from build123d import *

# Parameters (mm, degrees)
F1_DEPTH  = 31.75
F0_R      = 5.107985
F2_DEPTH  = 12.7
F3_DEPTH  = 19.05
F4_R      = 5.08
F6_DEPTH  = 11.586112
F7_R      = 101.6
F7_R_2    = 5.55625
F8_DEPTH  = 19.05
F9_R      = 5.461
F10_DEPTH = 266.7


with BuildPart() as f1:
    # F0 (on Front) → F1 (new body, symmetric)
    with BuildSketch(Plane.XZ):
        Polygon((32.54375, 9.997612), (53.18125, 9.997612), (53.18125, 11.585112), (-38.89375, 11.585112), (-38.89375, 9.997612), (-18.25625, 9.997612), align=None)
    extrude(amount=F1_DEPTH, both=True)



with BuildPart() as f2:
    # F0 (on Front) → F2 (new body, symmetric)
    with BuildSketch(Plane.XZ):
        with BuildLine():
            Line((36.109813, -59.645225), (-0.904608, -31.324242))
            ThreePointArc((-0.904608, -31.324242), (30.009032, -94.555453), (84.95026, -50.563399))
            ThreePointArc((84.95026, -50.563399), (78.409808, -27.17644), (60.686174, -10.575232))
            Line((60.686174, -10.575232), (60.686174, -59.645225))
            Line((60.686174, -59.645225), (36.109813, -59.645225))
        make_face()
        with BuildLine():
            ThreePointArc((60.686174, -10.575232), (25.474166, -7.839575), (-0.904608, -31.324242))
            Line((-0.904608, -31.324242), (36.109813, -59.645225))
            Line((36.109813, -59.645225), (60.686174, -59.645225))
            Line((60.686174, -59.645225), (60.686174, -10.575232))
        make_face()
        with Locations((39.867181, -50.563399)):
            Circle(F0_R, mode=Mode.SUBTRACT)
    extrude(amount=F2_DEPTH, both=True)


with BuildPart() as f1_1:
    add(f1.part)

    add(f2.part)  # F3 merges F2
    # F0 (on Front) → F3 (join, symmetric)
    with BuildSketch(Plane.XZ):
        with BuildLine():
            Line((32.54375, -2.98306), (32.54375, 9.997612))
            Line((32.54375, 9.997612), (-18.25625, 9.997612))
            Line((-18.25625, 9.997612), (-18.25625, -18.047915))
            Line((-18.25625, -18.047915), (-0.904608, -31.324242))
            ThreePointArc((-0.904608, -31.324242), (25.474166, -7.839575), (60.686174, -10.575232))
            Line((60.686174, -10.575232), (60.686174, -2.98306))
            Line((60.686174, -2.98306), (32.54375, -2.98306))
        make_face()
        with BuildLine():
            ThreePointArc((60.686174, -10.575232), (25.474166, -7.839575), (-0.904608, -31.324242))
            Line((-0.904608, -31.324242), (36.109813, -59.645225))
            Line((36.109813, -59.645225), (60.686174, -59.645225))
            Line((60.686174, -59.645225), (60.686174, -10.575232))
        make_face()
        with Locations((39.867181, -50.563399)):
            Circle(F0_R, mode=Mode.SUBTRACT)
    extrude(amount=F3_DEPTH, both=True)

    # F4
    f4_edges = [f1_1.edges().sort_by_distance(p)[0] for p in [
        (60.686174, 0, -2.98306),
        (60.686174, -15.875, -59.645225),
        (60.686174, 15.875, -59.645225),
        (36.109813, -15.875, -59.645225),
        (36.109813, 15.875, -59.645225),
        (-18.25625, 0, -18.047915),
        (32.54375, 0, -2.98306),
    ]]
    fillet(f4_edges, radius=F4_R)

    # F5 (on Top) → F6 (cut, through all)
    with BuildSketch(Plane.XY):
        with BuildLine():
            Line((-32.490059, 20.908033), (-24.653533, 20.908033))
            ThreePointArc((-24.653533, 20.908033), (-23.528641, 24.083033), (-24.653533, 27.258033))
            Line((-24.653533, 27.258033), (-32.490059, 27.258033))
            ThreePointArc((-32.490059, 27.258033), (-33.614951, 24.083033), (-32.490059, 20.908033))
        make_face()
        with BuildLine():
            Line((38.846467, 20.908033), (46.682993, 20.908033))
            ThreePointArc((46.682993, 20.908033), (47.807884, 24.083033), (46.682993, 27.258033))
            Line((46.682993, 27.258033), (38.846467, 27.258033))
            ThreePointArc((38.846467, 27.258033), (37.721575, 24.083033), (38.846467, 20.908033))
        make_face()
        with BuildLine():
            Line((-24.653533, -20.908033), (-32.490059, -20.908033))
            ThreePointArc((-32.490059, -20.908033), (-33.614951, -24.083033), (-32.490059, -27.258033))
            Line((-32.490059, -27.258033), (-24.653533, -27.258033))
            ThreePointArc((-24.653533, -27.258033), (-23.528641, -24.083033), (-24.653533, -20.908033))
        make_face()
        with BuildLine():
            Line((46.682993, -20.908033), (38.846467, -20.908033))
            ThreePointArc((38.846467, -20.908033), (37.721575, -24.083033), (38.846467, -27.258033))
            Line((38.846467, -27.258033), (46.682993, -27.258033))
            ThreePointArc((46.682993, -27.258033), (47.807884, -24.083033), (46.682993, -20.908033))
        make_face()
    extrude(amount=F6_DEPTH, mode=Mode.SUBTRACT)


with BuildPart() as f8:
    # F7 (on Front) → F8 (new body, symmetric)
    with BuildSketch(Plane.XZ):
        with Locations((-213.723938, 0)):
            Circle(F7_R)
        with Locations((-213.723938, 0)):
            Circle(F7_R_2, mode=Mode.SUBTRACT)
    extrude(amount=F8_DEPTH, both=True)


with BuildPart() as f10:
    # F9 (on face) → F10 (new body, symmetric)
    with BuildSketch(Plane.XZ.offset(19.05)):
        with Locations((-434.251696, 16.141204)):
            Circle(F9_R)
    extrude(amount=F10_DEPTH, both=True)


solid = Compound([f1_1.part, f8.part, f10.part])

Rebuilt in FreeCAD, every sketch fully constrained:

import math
import FreeCAD as App
import Part
import Sketcher
from FreeCAD import Vector
Q = App.Units.Quantity


def edges_at(feature, points):
    """Names of the edges that pass closest to the given points."""
    edges = feature.Shape.Edges
    near = lambda p: min(range(len(edges)), key=lambda i: edges[i].distToShape(Part.Vertex(*p))[0])
    return sorted({f"Edge{near(p) + 1}" for p in points})

doc = App.newDocument("Part")
body = doc.addObject("PartDesign::Body", "Body")

# Sketch on XZ plane
sketch1 = body.newObject("Sketcher::SketchObject", "Sketch")
sketch1.AttachmentSupport = (doc.getObject("XZ_Plane"), [""])
sketch1.MapMode = "FlatFace"
sketch1.addGeometry(Part.LineSegment(Vector(53.2, 10, 0), Vector(53.2, 11.6, 0)), False)
sketch1.addGeometry(Part.LineSegment(Vector(53.2, 11.6, 0), Vector(-38.9, 11.6, 0)), False)
sketch1.addGeometry(Part.LineSegment(Vector(-38.9, 11.6, 0), Vector(-38.9, 10, 0)), False)
sketch1.addGeometry(Part.LineSegment(Vector(-38.9, 10, 0), Vector(53.2, 10, 0)), False)
sketch1.addConstraint(Sketcher.Constraint("Coincident", 0, 2, 1, 1))
sketch1.addConstraint(Sketcher.Constraint("Coincident", 1, 2, 2, 1))
sketch1.addConstraint(Sketcher.Constraint("Coincident", 2, 2, 3, 1))
sketch1.addConstraint(Sketcher.Constraint("Coincident", 3, 2, 0, 1))
sketch1.addConstraint(Sketcher.Constraint("Vertical", 0))
sketch1.addConstraint(Sketcher.Constraint("Horizontal", 1))
sketch1.addConstraint(Sketcher.Constraint("Vertical", 2))
sketch1.addConstraint(Sketcher.Constraint("Horizontal", 3))
sketch1.addConstraint(Sketcher.Constraint("DistanceX", 1, 2, 1, 1, Q("3.625 in")))
sketch1.addConstraint(Sketcher.Constraint("DistanceY", 0, 1, 0, 2, Q("0.0625 in")))
sketch1.addConstraint(Sketcher.Constraint("DistanceX", -1, 1, 0, 2, Q("2.09375 in")))
sketch1.addConstraint(Sketcher.Constraint("DistanceY", -1, 1, 0, 2, Q("11.585112 mm")))
pad1 = body.newObject("PartDesign::Pad", "Pad")
pad1.Profile = sketch1
pad1.Length = Q("2.5 in")
pad1.Midplane = True
body2 = doc.addObject("PartDesign::Body", "Body001")

# Sketch on XZ plane
sketch2 = body2.newObject("Sketcher::SketchObject", "Sketch001")
sketch2.AttachmentSupport = (doc.getObject("XZ_Plane001"), [""])
sketch2.MapMode = "FlatFace"
sketch2.addGeometry(Part.ArcOfCircle(Part.Circle(Vector(40, -51, 0), Vector(0, 0, 1), 45), math.radians(155), math.radians(360)), False)
sketch2.addGeometry(Part.ArcOfCircle(Part.Circle(Vector(40, -51, 0), Vector(0, 0, 1), 45), math.radians(0), math.radians(62)), False)
sketch2.addGeometry(Part.ArcOfCircle(Part.Circle(Vector(40, -51, 0), Vector(0, 0, 1), 45), math.radians(62), math.radians(155)), False)
sketch2.addGeometry(Part.Circle(Vector(40, -51, 0), Vector(0, 0, 1), 5), False)
sketch2.addConstraint(Sketcher.Constraint("Tangent", 0, 2, 1, 1))
sketch2.addConstraint(Sketcher.Constraint("Tangent", 1, 2, 2, 1))
sketch2.addConstraint(Sketcher.Constraint("Tangent", 2, 2, 0, 1))
sketch2.addConstraint(Sketcher.Constraint("Coincident", 3, 3, 0, 3))
sketch2.addConstraint(Sketcher.Constraint("Horizontal", 3, 3, 0, 2))
sketch2.addConstraint(Sketcher.Constraint("Diameter", 3, Q("10.21597 mm")))
sketch2.addConstraint(Sketcher.Constraint("Radius", 0, Q("45.083078 mm")))
sketch2.addConstraint(Sketcher.Constraint("DistanceY", 0, 3, -1, 1, Q("50.563399 mm")))
sketch2.addConstraint(Sketcher.Constraint("DistanceX", -1, 1, 0, 3, Q("39.867182 mm")))
sketch2.addConstraint(Sketcher.Constraint("DistanceY", 1, 2, -1, 1, Q("10.575232 mm")))
sketch2.addConstraint(Sketcher.Constraint("DistanceX", 2, 2, -1, 1, Q("0.904608 mm")))
pad2 = body2.newObject("PartDesign::Pad", "Pad001")
pad2.Profile = sketch2
pad2.Length = Q("1 in")
pad2.Midplane = True
body.AllowCompound = True
doc.recompute()

boolean = body.newObject("PartDesign::Boolean", "Boolean")
boolean.Type = "Fuse"
boolean.addObjects([body2])

# Sketch on XZ plane
sketch3 = body.newObject("Sketcher::SketchObject", "Sketch002")
sketch3.AttachmentSupport = (doc.getObject("XZ_Plane"), [""])
sketch3.MapMode = "FlatFace"
sketch3.addGeometry(Part.LineSegment(Vector(33, -3, 0), Vector(33, 10, 0)), False)
sketch3.addGeometry(Part.LineSegment(Vector(33, 10, 0), Vector(-18, 10, 0)), False)
sketch3.addGeometry(Part.LineSegment(Vector(-18, 10, 0), Vector(-18, -18, 0)), False)
sketch3.addGeometry(Part.LineSegment(Vector(-18, -18, 0), Vector(-1, -31, 0)), False)
sketch3.addGeometry(Part.LineSegment(Vector(-1, -31, 0), Vector(36, -60, 0)), False)
sketch3.addGeometry(Part.LineSegment(Vector(36, -60, 0), Vector(61, -60, 0)), False)
sketch3.addGeometry(Part.LineSegment(Vector(61, -60, 0), Vector(61, -3, 0)), False)
sketch3.addGeometry(Part.LineSegment(Vector(61, -3, 0), Vector(33, -3, 0)), False)
sketch3.addGeometry(Part.Circle(Vector(40, -51, 0), Vector(0, 0, 1), 5), False)
sketch3.addConstraint(Sketcher.Constraint("Coincident", 0, 2, 1, 1))
sketch3.addConstraint(Sketcher.Constraint("Coincident", 1, 2, 2, 1))
sketch3.addConstraint(Sketcher.Constraint("Coincident", 2, 2, 3, 1))
sketch3.addConstraint(Sketcher.Constraint("Coincident", 3, 2, 4, 1))
sketch3.addConstraint(Sketcher.Constraint("Coincident", 4, 2, 5, 1))
sketch3.addConstraint(Sketcher.Constraint("Coincident", 5, 2, 6, 1))
sketch3.addConstraint(Sketcher.Constraint("Coincident", 6, 2, 7, 1))
sketch3.addConstraint(Sketcher.Constraint("Coincident", 7, 2, 0, 1))
sketch3.addConstraint(Sketcher.Constraint("Vertical", 0))
sketch3.addConstraint(Sketcher.Constraint("Horizontal", 1))
sketch3.addConstraint(Sketcher.Constraint("Vertical", 2))
sketch3.addConstraint(Sketcher.Constraint("Horizontal", 5))
sketch3.addConstraint(Sketcher.Constraint("Vertical", 6))
sketch3.addConstraint(Sketcher.Constraint("Horizontal", 7))
sketch3.addConstraint(Sketcher.Constraint("Parallel", 3, 4))
sketch3.addConstraint(Sketcher.Constraint("DistanceX", 1, 2, 1, 1, Q("2 in")))
sketch3.addConstraint(Sketcher.Constraint("Diameter", 8, Q("10.21597 mm")))
sketch3.addConstraint(Sketcher.Constraint("DistanceX", -1, 1, 0, 2, Q("1.28125 in")))
sketch3.addConstraint(Sketcher.Constraint("DistanceX", 5, 1, 5, 2, Q("24.576361 mm")))
sketch3.addConstraint(Sketcher.Constraint("DistanceY", 8, 3, -1, 1, Q("50.563399 mm")))
sketch3.addConstraint(Sketcher.Constraint("Distance", 3, Q("21.84812 mm")))
sketch3.addConstraint(Sketcher.Constraint("Distance", 4, Q("46.606281 mm")))
sketch3.addConstraint(Sketcher.Constraint("DistanceX", 7, 2, 7, 1, Q("28.142424 mm")))
sketch3.addConstraint(Sketcher.Constraint("DistanceY", 0, 1, 0, 2, Q("12.980672 mm")))
sketch3.addConstraint(Sketcher.Constraint("DistanceY", 2, 2, 2, 1, Q("28.045527 mm")))
sketch3.addConstraint(Sketcher.Constraint("DistanceX", -1, 1, 8, 3, Q("39.867181 mm")))
sketch3.addConstraint(Sketcher.Constraint("DistanceY", 6, 2, -1, 1, Q("2.98306 mm")))
pad3 = body.newObject("PartDesign::Pad", "Pad002")
pad3.Profile = sketch3
pad3.Length = Q("1.5 in")
pad3.Midplane = True
doc.recompute()

fillet = body.newObject("PartDesign::Fillet", "Fillet")
fillet.Base = (pad3, edges_at(pad3, [
    (60.686, 0, -2.983),
    (60.686, -15.875, -59.645),
    (60.686, 15.875, -59.645),
    (36.11, -15.875, -59.645),
    (36.11, 15.875, -59.645),
    (-18.256, 0, -18.048),
    (32.544, 0, -2.983),
]))
fillet.Radius = Q("0.2 in")

# Sketch on XY plane
sketch4 = body.newObject("Sketcher::SketchObject", "Sketch003")
sketch4.AttachmentSupport = (doc.getObject("XY_Plane"), [""])
sketch4.MapMode = "FlatFace"
sketch4.addGeometry(Part.LineSegment(Vector(-32, 21, 0), Vector(-25, 21, 0)), False)
sketch4.addGeometry(Part.ArcOfCircle(Part.Circle(Vector(-29, 24, 0), Vector(0, 0, 1), 5), math.radians(-39), math.radians(39)), False)
sketch4.addGeometry(Part.LineSegment(Vector(-25, 27, 0), Vector(-32, 27, 0)), False)
sketch4.addGeometry(Part.ArcOfCircle(Part.Circle(Vector(-29, 24, 0), Vector(0, 0, 1), 5), math.radians(141), math.radians(219)), False)
sketch4.addGeometry(Part.LineSegment(Vector(39, 21, 0), Vector(47, 21, 0)), False)
sketch4.addGeometry(Part.ArcOfCircle(Part.Circle(Vector(43, 24, 0), Vector(0, 0, 1), 5), math.radians(-39), math.radians(39)), False)
sketch4.addGeometry(Part.LineSegment(Vector(47, 27, 0), Vector(39, 27, 0)), False)
sketch4.addGeometry(Part.ArcOfCircle(Part.Circle(Vector(43, 24, 0), Vector(0, 0, 1), 5), math.radians(141), math.radians(219)), False)
sketch4.addGeometry(Part.LineSegment(Vector(-25, -21, 0), Vector(-32, -21, 0)), False)
sketch4.addGeometry(Part.ArcOfCircle(Part.Circle(Vector(-29, -24, 0), Vector(0, 0, 1), 5), math.radians(141), math.radians(219)), False)
sketch4.addGeometry(Part.LineSegment(Vector(-32, -27, 0), Vector(-25, -27, 0)), False)
sketch4.addGeometry(Part.ArcOfCircle(Part.Circle(Vector(-29, -24, 0), Vector(0, 0, 1), 5), math.radians(-39), math.radians(39)), False)
sketch4.addGeometry(Part.LineSegment(Vector(47, -21, 0), Vector(39, -21, 0)), False)
sketch4.addGeometry(Part.ArcOfCircle(Part.Circle(Vector(43, -24, 0), Vector(0, 0, 1), 5), math.radians(141), math.radians(219)), False)
sketch4.addGeometry(Part.LineSegment(Vector(39, -27, 0), Vector(47, -27, 0)), False)
sketch4.addGeometry(Part.ArcOfCircle(Part.Circle(Vector(43, -24, 0), Vector(0, 0, 1), 5), math.radians(-39), math.radians(39)), False)
sketch4.addConstraint(Sketcher.Constraint("Coincident", 0, 2, 1, 1))
sketch4.addConstraint(Sketcher.Constraint("Coincident", 1, 2, 2, 1))
sketch4.addConstraint(Sketcher.Constraint("Coincident", 2, 2, 3, 1))
sketch4.addConstraint(Sketcher.Constraint("Coincident", 3, 2, 0, 1))
sketch4.addConstraint(Sketcher.Constraint("Coincident", 4, 2, 5, 1))
sketch4.addConstraint(Sketcher.Constraint("Coincident", 5, 2, 6, 1))
sketch4.addConstraint(Sketcher.Constraint("Coincident", 6, 2, 7, 1))
sketch4.addConstraint(Sketcher.Constraint("Coincident", 7, 2, 4, 1))
sketch4.addConstraint(Sketcher.Constraint("Coincident", 8, 2, 9, 1))
sketch4.addConstraint(Sketcher.Constraint("Coincident", 9, 2, 10, 1))
sketch4.addConstraint(Sketcher.Constraint("Coincident", 10, 2, 11, 1))
sketch4.addConstraint(Sketcher.Constraint("Coincident", 11, 2, 8, 1))
sketch4.addConstraint(Sketcher.Constraint("Coincident", 12, 2, 13, 1))
sketch4.addConstraint(Sketcher.Constraint("Coincident", 13, 2, 14, 1))
sketch4.addConstraint(Sketcher.Constraint("Coincident", 14, 2, 15, 1))
sketch4.addConstraint(Sketcher.Constraint("Coincident", 15, 2, 12, 1))
sketch4.addConstraint(Sketcher.Constraint("Horizontal", 0))
sketch4.addConstraint(Sketcher.Constraint("Horizontal", 2))
sketch4.addConstraint(Sketcher.Constraint("Horizontal", 4))
sketch4.addConstraint(Sketcher.Constraint("Horizontal", 6))
sketch4.addConstraint(Sketcher.Constraint("Horizontal", 8))
sketch4.addConstraint(Sketcher.Constraint("Horizontal", 10))
sketch4.addConstraint(Sketcher.Constraint("Horizontal", 12))
sketch4.addConstraint(Sketcher.Constraint("Horizontal", 14))
sketch4.addConstraint(Sketcher.Constraint("Coincident", 3, 3, 1, 3))
sketch4.addConstraint(Sketcher.Constraint("Coincident", 7, 3, 5, 3))
sketch4.addConstraint(Sketcher.Constraint("Coincident", 11, 3, 9, 3))
sketch4.addConstraint(Sketcher.Constraint("Coincident", 15, 3, 13, 3))
sketch4.addConstraint(Sketcher.Constraint("Equal", 1, 3))
sketch4.addConstraint(Sketcher.Constraint("Equal", 3, 7))
sketch4.addConstraint(Sketcher.Constraint("Equal", 7, 9))
sketch4.addConstraint(Sketcher.Constraint("Equal", 9, 11))
sketch4.addConstraint(Sketcher.Constraint("Equal", 11, 13))
sketch4.addConstraint(Sketcher.Constraint("Equal", 5, 15))
sketch4.addConstraint(Sketcher.Constraint("Symmetric", 1, 3, 9, 3, -1))
sketch4.addConstraint(Sketcher.Constraint("Symmetric", 5, 3, 13, 3, -1))
sketch4.addConstraint(Sketcher.Constraint("Horizontal", 3, 3, 5, 3))
sketch4.addConstraint(Sketcher.Constraint("Horizontal", 3, 2, 4, 2))
sketch4.addConstraint(Sketcher.Constraint("Horizontal", 2, 2, 5, 2))
sketch4.addConstraint(Sketcher.Constraint("Horizontal", 11, 2, 12, 2))
sketch4.addConstraint(Sketcher.Constraint("Horizontal", 10, 2, 13, 2))
sketch4.addConstraint(Sketcher.Constraint("Vertical", 0, 2, 1, 2))
sketch4.addConstraint(Sketcher.Constraint("Vertical", 3, 2, 8, 2))
sketch4.addConstraint(Sketcher.Constraint("Vertical", 8, 2, 9, 2))
sketch4.addConstraint(Sketcher.Constraint("Equal", 2, 4))
sketch4.addConstraint(Sketcher.Constraint("DistanceY", 0, 2, 1, 2, Q("0.25 in")))
sketch4.addConstraint(Sketcher.Constraint("Radius", 1, Q("5.043154 mm")))
sketch4.addConstraint(Sketcher.Constraint("DistanceX", -1, 1, 7, 3, Q("42.764729 mm")))
sketch4.addConstraint(Sketcher.Constraint("DistanceX", 2, 2, -1, 1, Q("32.490059 mm")))
sketch4.addConstraint(Sketcher.Constraint("DistanceY", -1, 1, 1, 3, Q("24.083033 mm")))
pocket1 = body.newObject("PartDesign::Pocket", "Pocket")
pocket1.Profile = sketch4
pocket1.Type = "ThroughAll"
pocket1.Reversed = True
body3 = doc.addObject("PartDesign::Body", "Body002")

# Sketch on XZ plane
sketch5 = body3.newObject("Sketcher::SketchObject", "Sketch004")
sketch5.AttachmentSupport = (doc.getObject("XZ_Plane002"), [""])
sketch5.MapMode = "FlatFace"
sketch5.addGeometry(Part.Circle(Vector(-214, 0, 0), Vector(0, 0, 1), 102), False)
sketch5.addGeometry(Part.Circle(Vector(-214, 0, 0), Vector(0, 0, 1), 6), False)
sketch5.addConstraint(Sketcher.Constraint("Coincident", 1, 3, 0, 3))
sketch5.addConstraint(Sketcher.Constraint("PointOnObject", 0, 3, -1))
sketch5.addConstraint(Sketcher.Constraint("Diameter", 0, Q("8 in")))
sketch5.addConstraint(Sketcher.Constraint("Diameter", 1, Q("0.4375 in")))
sketch5.addConstraint(Sketcher.Constraint("DistanceX", 0, 3, -1, 1, Q("213.723938 mm")))
pad4 = body3.newObject("PartDesign::Pad", "Pad003")
pad4.Profile = sketch5
pad4.Length = Q("1.5 in")
pad4.Midplane = True
body4 = doc.addObject("PartDesign::Body", "Body003")

# Sketch on XZ plane
sketch6 = body4.newObject("Sketcher::SketchObject", "Sketch005")
sketch6.AttachmentSupport = (doc.getObject("XZ_Plane003"), [""])
sketch6.MapMode = "FlatFace"
sketch6.AttachmentOffset = App.Placement(Vector(0, 0, 0.75 * 25.4), App.Rotation())
sketch6.addGeometry(Part.Circle(Vector(-434, 16, 0), Vector(0, 0, 1), 5), False)
sketch6.addConstraint(Sketcher.Constraint("Diameter", 0, Q("0.43 in")))
sketch6.addConstraint(Sketcher.Constraint("DistanceX", 0, 3, -1, 1, Q("434.251696 mm")))
sketch6.addConstraint(Sketcher.Constraint("DistanceY", -1, 1, 0, 3, Q("16.141204 mm")))
pad5 = body4.newObject("PartDesign::Pad", "Pad004")
pad5.Profile = sketch6
pad5.Length = Q("21 in")
pad5.Midplane = True

doc.recompute()
